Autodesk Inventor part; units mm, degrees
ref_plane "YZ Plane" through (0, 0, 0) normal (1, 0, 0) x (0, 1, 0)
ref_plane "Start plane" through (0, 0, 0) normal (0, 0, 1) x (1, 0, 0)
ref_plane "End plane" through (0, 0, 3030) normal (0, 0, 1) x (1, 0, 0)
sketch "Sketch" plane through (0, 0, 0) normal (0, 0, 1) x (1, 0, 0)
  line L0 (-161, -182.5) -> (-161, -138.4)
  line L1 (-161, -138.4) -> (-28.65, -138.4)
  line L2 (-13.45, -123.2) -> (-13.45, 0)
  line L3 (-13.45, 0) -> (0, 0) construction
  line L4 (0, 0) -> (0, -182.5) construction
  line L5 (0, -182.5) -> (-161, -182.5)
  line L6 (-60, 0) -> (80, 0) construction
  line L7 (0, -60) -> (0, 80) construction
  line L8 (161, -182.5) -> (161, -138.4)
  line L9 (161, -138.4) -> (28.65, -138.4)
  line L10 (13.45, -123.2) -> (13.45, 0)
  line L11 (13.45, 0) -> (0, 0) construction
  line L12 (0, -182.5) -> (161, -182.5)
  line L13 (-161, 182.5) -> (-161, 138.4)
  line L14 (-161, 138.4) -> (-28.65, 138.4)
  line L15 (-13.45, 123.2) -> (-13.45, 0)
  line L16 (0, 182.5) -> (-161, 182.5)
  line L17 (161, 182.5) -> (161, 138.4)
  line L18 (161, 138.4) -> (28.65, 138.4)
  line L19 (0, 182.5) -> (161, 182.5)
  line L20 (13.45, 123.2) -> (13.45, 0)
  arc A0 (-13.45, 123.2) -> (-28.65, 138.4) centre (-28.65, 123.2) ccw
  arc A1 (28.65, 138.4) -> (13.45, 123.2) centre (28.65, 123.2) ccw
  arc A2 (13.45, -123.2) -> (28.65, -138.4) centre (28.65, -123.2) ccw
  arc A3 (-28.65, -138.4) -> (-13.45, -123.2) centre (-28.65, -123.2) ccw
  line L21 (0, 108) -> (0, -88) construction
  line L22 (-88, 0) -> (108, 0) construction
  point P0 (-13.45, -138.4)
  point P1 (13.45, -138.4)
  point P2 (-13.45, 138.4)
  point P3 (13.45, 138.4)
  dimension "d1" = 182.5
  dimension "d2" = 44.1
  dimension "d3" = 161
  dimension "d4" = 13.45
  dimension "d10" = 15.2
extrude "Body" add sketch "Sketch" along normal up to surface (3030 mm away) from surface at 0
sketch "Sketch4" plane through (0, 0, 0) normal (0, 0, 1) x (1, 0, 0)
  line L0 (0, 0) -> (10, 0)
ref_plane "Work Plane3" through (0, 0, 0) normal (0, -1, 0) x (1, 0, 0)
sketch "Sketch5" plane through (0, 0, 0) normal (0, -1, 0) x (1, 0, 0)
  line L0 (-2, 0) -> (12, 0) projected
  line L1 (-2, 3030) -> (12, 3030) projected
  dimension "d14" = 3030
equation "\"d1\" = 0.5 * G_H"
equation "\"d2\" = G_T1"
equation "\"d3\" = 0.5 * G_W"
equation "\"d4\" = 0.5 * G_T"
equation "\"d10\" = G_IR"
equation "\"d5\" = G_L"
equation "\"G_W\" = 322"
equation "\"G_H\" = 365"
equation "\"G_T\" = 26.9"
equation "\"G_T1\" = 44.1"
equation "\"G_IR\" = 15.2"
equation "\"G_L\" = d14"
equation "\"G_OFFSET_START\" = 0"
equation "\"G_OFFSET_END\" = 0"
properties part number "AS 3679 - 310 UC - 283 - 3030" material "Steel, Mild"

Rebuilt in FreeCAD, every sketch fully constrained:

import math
import FreeCAD as App
import Part
import Sketcher
Q = App.Units.Quantity

doc = App.newDocument("Part")
body = doc.addObject("PartDesign::Body", "Body")

sketch1 = doc.addObject("Sketcher::SketchObject", "Sketch")
body.addObject(sketch1)
sketch1.AttachmentSupport = (doc.XY_Plane, [""])
sketch1.MapMode = "FlatFace"
sketch1.addGeometry(Part.LineSegment(App.Vector(-161, -138, 0), App.Vector(-161, -182, 0)), False)
sketch1.addGeometry(Part.LineSegment(App.Vector(-161, -182, 0), App.Vector(161, -182, 0)), False)
sketch1.addGeometry(Part.LineSegment(App.Vector(161, -182, 0), App.Vector(161, -138, 0)), False)
sketch1.addGeometry(Part.LineSegment(App.Vector(161, -138, 0), App.Vector(29, -138, 0)), False)
sketch1.addGeometry(Part.ArcOfCircle(Part.Circle(App.Vector(29, -123, 0), App.Vector(0, 0, 1), 15), math.radians(180), math.radians(270)), False)
sketch1.addGeometry(Part.LineSegment(App.Vector(13, -123, 0), App.Vector(13, 123, 0)), False)
sketch1.addGeometry(Part.ArcOfCircle(Part.Circle(App.Vector(29, 123, 0), App.Vector(0, 0, 1), 15), math.radians(90), math.radians(180)), False)
sketch1.addGeometry(Part.LineSegment(App.Vector(29, 138, 0), App.Vector(161, 138, 0)), False)
sketch1.addGeometry(Part.LineSegment(App.Vector(161, 138, 0), App.Vector(161, 182, 0)), False)
sketch1.addGeometry(Part.LineSegment(App.Vector(161, 182, 0), App.Vector(-161, 182, 0)), False)
sketch1.addGeometry(Part.LineSegment(App.Vector(-161, 182, 0), App.Vector(-161, 138, 0)), False)
sketch1.addGeometry(Part.LineSegment(App.Vector(-161, 138, 0), App.Vector(-29, 138, 0)), False)
sketch1.addGeometry(Part.ArcOfCircle(Part.Circle(App.Vector(-29, 123, 0), App.Vector(0, 0, 1), 15), math.radians(0), math.radians(90)), False)
sketch1.addGeometry(Part.LineSegment(App.Vector(-13, 123, 0), App.Vector(-13, -123, 0)), False)
sketch1.addGeometry(Part.ArcOfCircle(Part.Circle(App.Vector(-29, -123, 0), App.Vector(0, 0, 1), 15), math.radians(-90), math.radians(0)), False)
sketch1.addGeometry(Part.LineSegment(App.Vector(-29, -138, 0), App.Vector(-161, -138, 0)), False)
sketch1.addConstraint(Sketcher.Constraint("Coincident", 0, 2, 1, 1))
sketch1.addConstraint(Sketcher.Constraint("Coincident", 1, 2, 2, 1))
sketch1.addConstraint(Sketcher.Constraint("Coincident", 2, 2, 3, 1))
sketch1.addConstraint(Sketcher.Constraint("Tangent", 3, 2, 4, 2))
sketch1.addConstraint(Sketcher.Constraint("Tangent", 4, 1, 5, 1))
sketch1.addConstraint(Sketcher.Constraint("Tangent", 5, 2, 6, 2))
sketch1.addConstraint(Sketcher.Constraint("Tangent", 6, 1, 7, 1))
sketch1.addConstraint(Sketcher.Constraint("Coincident", 7, 2, 8, 1))
sketch1.addConstraint(Sketcher.Constraint("Coincident", 8, 2, 9, 1))
sketch1.addConstraint(Sketcher.Constraint("Coincident", 9, 2, 10, 1))
sketch1.addConstraint(Sketcher.Constraint("Coincident", 10, 2, 11, 1))
sketch1.addConstraint(Sketcher.Constraint("Tangent", 11, 2, 12, 2))
sketch1.addConstraint(Sketcher.Constraint("Tangent", 12, 1, 13, 1))
sketch1.addConstraint(Sketcher.Constraint("Tangent", 13, 2, 14, 2))
sketch1.addConstraint(Sketcher.Constraint("Tangent", 14, 1, 15, 1))
sketch1.addConstraint(Sketcher.Constraint("Coincident", 15, 2, 0, 1))
sketch1.addConstraint(Sketcher.Constraint("Vertical", 0))
sketch1.addConstraint(Sketcher.Constraint("Horizontal", 1))
sketch1.addConstraint(Sketcher.Constraint("Vertical", 2))
sketch1.addConstraint(Sketcher.Constraint("Horizontal", 3))
sketch1.addConstraint(Sketcher.Constraint("Vertical", 5))
sketch1.addConstraint(Sketcher.Constraint("Horizontal", 7))
sketch1.addConstraint(Sketcher.Constraint("Vertical", 8))
sketch1.addConstraint(Sketcher.Constraint("Horizontal", 9))
sketch1.addConstraint(Sketcher.Constraint("Vertical", 10))
sketch1.addConstraint(Sketcher.Constraint("Horizontal", 11))
sketch1.addConstraint(Sketcher.Constraint("Vertical", 13))
sketch1.addConstraint(Sketcher.Constraint("Horizontal", 15))
sketch1.addConstraint(Sketcher.Constraint("Equal", 4, 6))
sketch1.addConstraint(Sketcher.Constraint("Equal", 6, 12))
sketch1.addConstraint(Sketcher.Constraint("Equal", 12, 14))
sketch1.addConstraint(Sketcher.Constraint("Symmetric", 4, 3, 12, 3, -1, 1))
sketch1.addConstraint(Sketcher.Constraint("Symmetric", 0, 2, 8, 2, -1, 1))
sketch1.addConstraint(Sketcher.Constraint("Symmetric", 7, 2, 10, 2, -2))
sketch1.addConstraint(Sketcher.Constraint("Symmetric", 2, 2, 15, 2, -2))
sketch1.addConstraint(Sketcher.Constraint("Radius", 4, Q("15.2 mm")))
sketch1.addConstraint(Sketcher.Constraint("DistanceY", 0, 2, 0, 1, Q("44.1 mm")))
sketch1.addConstraint(Sketcher.Constraint("DistanceX", 0, 2, -1, 1, Q("161 mm")))
sketch1.addConstraint(Sketcher.Constraint("DistanceY", 0, 2, -1, 1, Q("182.5 mm")))
sketch1.addConstraint(Sketcher.Constraint("DistanceX", -1, 1, 4, 1, Q("13.45 mm")))
pad1 = doc.addObject("PartDesign::Pad", "Pad")
body.addObject(pad1)
pad1.Profile = sketch1
pad1.Length = 3030

doc.recompute()
